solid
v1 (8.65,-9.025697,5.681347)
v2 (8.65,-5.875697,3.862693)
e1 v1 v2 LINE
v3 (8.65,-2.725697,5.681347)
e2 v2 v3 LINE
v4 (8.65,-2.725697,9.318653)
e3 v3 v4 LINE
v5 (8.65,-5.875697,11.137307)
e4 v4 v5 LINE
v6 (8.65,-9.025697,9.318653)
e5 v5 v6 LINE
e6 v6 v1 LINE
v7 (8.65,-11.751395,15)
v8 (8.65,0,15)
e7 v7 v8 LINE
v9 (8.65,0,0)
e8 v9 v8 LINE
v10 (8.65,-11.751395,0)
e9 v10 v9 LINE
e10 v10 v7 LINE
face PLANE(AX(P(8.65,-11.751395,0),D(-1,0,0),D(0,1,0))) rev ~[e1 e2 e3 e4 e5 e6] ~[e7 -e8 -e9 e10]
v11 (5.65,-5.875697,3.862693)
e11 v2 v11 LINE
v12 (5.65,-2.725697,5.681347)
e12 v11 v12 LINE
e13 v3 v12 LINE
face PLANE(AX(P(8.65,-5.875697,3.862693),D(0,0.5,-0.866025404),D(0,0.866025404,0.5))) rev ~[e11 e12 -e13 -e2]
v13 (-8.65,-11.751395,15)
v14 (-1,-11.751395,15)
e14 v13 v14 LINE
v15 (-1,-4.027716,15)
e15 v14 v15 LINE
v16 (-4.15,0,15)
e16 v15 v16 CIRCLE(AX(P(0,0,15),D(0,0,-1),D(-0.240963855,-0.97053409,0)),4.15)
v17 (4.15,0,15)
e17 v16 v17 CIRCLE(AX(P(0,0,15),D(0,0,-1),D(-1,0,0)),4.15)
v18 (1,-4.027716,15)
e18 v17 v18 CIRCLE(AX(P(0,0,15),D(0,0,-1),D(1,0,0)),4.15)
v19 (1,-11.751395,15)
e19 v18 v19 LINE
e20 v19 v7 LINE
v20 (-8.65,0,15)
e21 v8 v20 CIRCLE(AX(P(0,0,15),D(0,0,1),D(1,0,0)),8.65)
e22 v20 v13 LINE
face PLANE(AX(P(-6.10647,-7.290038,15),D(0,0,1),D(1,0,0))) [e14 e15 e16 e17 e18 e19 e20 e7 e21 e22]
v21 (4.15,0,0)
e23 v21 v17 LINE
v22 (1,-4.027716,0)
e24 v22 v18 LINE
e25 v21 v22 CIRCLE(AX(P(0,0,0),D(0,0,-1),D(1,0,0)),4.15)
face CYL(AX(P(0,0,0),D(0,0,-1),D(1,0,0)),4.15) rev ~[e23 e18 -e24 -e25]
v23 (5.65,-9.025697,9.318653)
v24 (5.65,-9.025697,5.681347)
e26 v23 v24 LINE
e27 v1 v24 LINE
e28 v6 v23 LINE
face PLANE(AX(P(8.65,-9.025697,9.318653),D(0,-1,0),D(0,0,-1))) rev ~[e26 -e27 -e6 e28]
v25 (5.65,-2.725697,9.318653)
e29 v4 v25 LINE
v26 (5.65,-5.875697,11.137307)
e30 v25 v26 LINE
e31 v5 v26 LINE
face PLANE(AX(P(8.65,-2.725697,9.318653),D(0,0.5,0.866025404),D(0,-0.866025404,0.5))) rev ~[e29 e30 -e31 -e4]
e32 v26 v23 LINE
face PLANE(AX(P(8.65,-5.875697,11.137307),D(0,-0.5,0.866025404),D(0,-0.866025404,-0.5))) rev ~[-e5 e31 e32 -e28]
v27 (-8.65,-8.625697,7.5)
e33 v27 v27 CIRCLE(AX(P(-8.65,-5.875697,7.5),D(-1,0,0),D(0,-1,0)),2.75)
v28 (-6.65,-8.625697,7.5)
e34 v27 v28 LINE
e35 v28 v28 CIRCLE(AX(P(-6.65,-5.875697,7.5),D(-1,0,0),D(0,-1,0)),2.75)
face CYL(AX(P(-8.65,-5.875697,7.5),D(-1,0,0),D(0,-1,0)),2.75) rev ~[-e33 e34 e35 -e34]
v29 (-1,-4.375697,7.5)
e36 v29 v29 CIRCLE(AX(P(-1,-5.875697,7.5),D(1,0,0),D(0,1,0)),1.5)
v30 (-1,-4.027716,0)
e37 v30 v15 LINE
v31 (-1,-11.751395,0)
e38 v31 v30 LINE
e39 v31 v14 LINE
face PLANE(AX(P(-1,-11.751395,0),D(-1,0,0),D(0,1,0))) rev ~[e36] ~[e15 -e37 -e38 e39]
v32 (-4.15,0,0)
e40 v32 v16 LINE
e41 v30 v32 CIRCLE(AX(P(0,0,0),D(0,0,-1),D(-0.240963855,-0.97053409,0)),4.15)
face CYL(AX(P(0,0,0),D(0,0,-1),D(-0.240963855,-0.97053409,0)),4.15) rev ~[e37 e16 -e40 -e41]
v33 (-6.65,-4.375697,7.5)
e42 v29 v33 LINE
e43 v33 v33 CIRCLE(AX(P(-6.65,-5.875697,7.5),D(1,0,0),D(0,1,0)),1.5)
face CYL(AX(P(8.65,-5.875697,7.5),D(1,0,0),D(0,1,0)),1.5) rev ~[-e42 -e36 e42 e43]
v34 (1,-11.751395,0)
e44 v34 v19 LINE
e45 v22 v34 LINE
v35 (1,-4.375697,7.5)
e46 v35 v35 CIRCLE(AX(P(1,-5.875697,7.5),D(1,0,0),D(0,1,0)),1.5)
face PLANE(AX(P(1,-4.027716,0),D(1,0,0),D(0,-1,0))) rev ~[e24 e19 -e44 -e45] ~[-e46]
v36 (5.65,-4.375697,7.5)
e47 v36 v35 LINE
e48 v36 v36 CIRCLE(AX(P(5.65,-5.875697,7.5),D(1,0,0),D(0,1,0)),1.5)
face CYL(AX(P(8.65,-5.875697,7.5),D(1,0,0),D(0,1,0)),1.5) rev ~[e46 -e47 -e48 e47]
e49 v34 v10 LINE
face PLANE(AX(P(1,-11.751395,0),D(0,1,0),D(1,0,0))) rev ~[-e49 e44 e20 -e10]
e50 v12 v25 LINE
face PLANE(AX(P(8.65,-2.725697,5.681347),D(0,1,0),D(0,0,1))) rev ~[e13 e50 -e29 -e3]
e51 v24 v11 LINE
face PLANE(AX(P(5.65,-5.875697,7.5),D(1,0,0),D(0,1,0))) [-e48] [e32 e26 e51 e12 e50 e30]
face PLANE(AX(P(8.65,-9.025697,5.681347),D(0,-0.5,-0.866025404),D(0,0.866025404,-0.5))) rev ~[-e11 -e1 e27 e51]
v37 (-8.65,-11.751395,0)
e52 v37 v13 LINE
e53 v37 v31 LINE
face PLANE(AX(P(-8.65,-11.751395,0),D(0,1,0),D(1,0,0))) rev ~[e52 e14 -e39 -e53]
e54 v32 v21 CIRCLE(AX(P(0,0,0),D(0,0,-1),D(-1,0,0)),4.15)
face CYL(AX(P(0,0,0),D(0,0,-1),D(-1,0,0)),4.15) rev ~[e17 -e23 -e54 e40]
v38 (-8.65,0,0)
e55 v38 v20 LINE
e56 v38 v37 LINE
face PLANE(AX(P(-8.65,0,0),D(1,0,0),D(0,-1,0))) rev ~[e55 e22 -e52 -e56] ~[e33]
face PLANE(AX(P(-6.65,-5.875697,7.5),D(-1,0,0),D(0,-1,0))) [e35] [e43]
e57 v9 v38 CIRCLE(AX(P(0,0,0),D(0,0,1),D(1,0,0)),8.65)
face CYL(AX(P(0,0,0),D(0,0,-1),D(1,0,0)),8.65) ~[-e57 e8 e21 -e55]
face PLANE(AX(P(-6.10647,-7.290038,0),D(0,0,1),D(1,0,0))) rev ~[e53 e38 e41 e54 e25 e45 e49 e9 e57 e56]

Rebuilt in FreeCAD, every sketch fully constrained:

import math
import FreeCAD as App
import Part
import Sketcher

V = App.Vector
Q = App.Units.Quantity

doc = App.newDocument("Part")
body = doc.addObject("PartDesign::Body", "Body")

sketch1 = body.newObject("Sketcher::SketchObject", "Sketch")
sketch1.AttachmentSupport = (doc.getObject("XY_Plane"), [""])
sketch1.MapMode = "FlatFace"
sketch1.addGeometry([
    Part.LineSegment(V(-1, -11.8, 0), V(-1, -4, 0)),
    Part.ArcOfCircle(Part.Circle(V(0, 0, 0), V(0, 0, 1), 4.2), math.radians(180), math.radians(256)),
    Part.ArcOfCircle(Part.Circle(V(0, 0, 0), V(0, 0, 1), 4.2), math.radians(0), math.radians(180)),
    Part.ArcOfCircle(Part.Circle(V(0, 0, 0), V(0, 0, 1), 4.2), math.radians(-76), math.radians(0)),
    Part.LineSegment(V(1, -4, 0), V(1, -11.8, 0)),
    Part.LineSegment(V(1, -11.8, 0), V(8.7, -11.8, 0)),
    Part.LineSegment(V(8.7, -11.8, 0), V(8.7, 0, 0)),
    Part.ArcOfCircle(Part.Circle(V(0, 0, 0), V(0, 0, 1), 8.7), math.radians(0), math.radians(180)),
    Part.LineSegment(V(-8.7, 0, 0), V(-8.7, -11.8, 0)),
    Part.LineSegment(V(-8.7, -11.8, 0), V(-1, -11.8, 0)),
], False)
sketch1.addConstraint([
    Sketcher.Constraint("Coincident", 0, 2, 1, 2),
    Sketcher.Constraint("Tangent", 1, 1, 2, 2),
    Sketcher.Constraint("Tangent", 2, 1, 3, 2),
    Sketcher.Constraint("Coincident", 3, 1, 4, 1),
    Sketcher.Constraint("Coincident", 4, 2, 5, 1),
    Sketcher.Constraint("Coincident", 5, 2, 6, 1),
    Sketcher.Constraint("Tangent", 6, 2, 7, 1),
    Sketcher.Constraint("Tangent", 7, 2, 8, 1),
    Sketcher.Constraint("Coincident", 8, 2, 9, 1),
    Sketcher.Constraint("Coincident", 9, 2, 0, 1),
    Sketcher.Constraint("Vertical", 0),
    Sketcher.Constraint("Vertical", 4),
    Sketcher.Constraint("Horizontal", 5),
    Sketcher.Constraint("Vertical", 6),
    Sketcher.Constraint("Vertical", 8),
    Sketcher.Constraint("Horizontal", 9),
    Sketcher.Constraint("Coincident", 1, 3, -1, 1),
    Sketcher.Constraint("Coincident", 7, 3, -1, 1),
    Sketcher.Constraint("Equal", 1, 2),
    Sketcher.Constraint("Equal", 2, 3),
    Sketcher.Constraint("Symmetric", 4, 2, 9, 2, -2),
    Sketcher.Constraint("PointOnObject", 1, 1, -1),
    Sketcher.Constraint("PointOnObject", 2, 1, -1),
    Sketcher.Constraint("Radius", 1, 4.15),
    Sketcher.Constraint("Radius", 7, 8.65),
    Sketcher.Constraint("DistanceX", 0, 2, -1, 1, 1.0),
    Sketcher.Constraint("DistanceY", 0, 1, 0, 2, 7.723678),
])
pad1 = body.newObject("PartDesign::Pad", "Pad")
pad1.Profile = sketch1
pad1.Length = 15

sketch2 = body.newObject("Sketcher::SketchObject", "Sketch001")
sketch2.AttachmentSupport = (doc.getObject("YZ_Plane"), [""])
sketch2.MapMode = "FlatFace"
sketch2.AttachmentOffset = App.Placement(V(0, 0, 8.65), App.Rotation())
sketch2.addGeometry(Part.Circle(V(-5.9, 7.5, 0), V(0, 0, 1), 1.5), False)
sketch2.addConstraint([
    Sketcher.Constraint("Diameter", 0, 3.0),
    Sketcher.Constraint("DistanceY", -1, 1, 0, 3, 7.5),
    Sketcher.Constraint("DistanceX", 0, 3, -1, 1, 5.875697),
])
pocket1 = body.newObject("PartDesign::Pocket", "Pocket")
pocket1.Profile = sketch2
pocket1.Type = "ThroughAll"

sketch3 = body.newObject("Sketcher::SketchObject", "Sketch002")
sketch3.AttachmentSupport = (doc.getObject("YZ_Plane"), [""])
sketch3.MapMode = "FlatFace"
sketch3.AttachmentOffset = App.Placement(V(0, 0, 8.65), App.Rotation())
sketch3.addGeometry([
    Part.LineSegment(V(-2.7, 9.3, 0), V(-5.9, 11.1, 0)),
    Part.LineSegment(V(-5.9, 11.1, 0), V(-9, 9.3, 0)),
    Part.LineSegment(V(-9, 9.3, 0), V(-9, 5.7, 0)),
    Part.LineSegment(V(-9, 5.7, 0), V(-5.9, 3.9, 0)),
    Part.LineSegment(V(-5.9, 3.9, 0), V(-2.7, 5.7, 0)),
    Part.LineSegment(V(-2.7, 5.7, 0), V(-2.7, 9.3, 0)),
], False)
sketch3.addConstraint([
    Sketcher.Constraint("Coincident", 0, 2, 1, 1),
    Sketcher.Constraint("Coincident", 1, 2, 2, 1),
    Sketcher.Constraint("Coincident", 2, 2, 3, 1),
    Sketcher.Constraint("Coincident", 3, 2, 4, 1),
    Sketcher.Constraint("Coincident", 4, 2, 5, 1),
    Sketcher.Constraint("Coincident", 5, 2, 0, 1),
    Sketcher.Constraint("Vertical", 2),
    Sketcher.Constraint("Vertical", 5),
    Sketcher.Constraint("Parallel", 0, 3),
    Sketcher.Constraint("Parallel", 1, 4),
    Sketcher.Constraint("Horizontal", 2, 2, 4, 2),
    Sketcher.Constraint("Horizontal", 1, 2, 5, 2),
    Sketcher.Constraint("Vertical", 0, 2, 3, 2),
    Sketcher.Constraint("Angle", 0, Q("150 deg")),
    Sketcher.Constraint("DistanceX", 2, 2, 4, 2, 6.3),
    Sketcher.Constraint("DistanceY", 2, 2, 2, 1, 3.637307),
    Sketcher.Constraint("DistanceX", 0, 2, -1, 1, 5.875697),
    Sketcher.Constraint("DistanceY", -1, 1, 0, 2, 11.137307),
])
pocket2 = body.newObject("PartDesign::Pocket", "Pocket001")
pocket2.Profile = sketch3
pocket2.Length = 3

sketch4 = body.newObject("Sketcher::SketchObject", "Sketch003")
sketch4.AttachmentSupport = (doc.getObject("YZ_Plane"), [""])
sketch4.MapMode = "FlatFace"
sketch4.AttachmentOffset = App.Placement(V(0, 0, -8.65), App.Rotation())
sketch4.addGeometry(Part.Circle(V(-5.9, 7.5, 0), V(0, 0, 1), 2.8), False)
sketch4.addConstraint([
    Sketcher.Constraint("Diameter", 0, 5.5),
    Sketcher.Constraint("DistanceY", -1, 1, 0, 3, 7.5),
    Sketcher.Constraint("DistanceX", 0, 3, -1, 1, 5.875697),
])
pocket3 = body.newObject("PartDesign::Pocket", "Pocket002")
pocket3.Profile = sketch4
pocket3.Length = 2
pocket3.Reversed = True

doc.recompute()
